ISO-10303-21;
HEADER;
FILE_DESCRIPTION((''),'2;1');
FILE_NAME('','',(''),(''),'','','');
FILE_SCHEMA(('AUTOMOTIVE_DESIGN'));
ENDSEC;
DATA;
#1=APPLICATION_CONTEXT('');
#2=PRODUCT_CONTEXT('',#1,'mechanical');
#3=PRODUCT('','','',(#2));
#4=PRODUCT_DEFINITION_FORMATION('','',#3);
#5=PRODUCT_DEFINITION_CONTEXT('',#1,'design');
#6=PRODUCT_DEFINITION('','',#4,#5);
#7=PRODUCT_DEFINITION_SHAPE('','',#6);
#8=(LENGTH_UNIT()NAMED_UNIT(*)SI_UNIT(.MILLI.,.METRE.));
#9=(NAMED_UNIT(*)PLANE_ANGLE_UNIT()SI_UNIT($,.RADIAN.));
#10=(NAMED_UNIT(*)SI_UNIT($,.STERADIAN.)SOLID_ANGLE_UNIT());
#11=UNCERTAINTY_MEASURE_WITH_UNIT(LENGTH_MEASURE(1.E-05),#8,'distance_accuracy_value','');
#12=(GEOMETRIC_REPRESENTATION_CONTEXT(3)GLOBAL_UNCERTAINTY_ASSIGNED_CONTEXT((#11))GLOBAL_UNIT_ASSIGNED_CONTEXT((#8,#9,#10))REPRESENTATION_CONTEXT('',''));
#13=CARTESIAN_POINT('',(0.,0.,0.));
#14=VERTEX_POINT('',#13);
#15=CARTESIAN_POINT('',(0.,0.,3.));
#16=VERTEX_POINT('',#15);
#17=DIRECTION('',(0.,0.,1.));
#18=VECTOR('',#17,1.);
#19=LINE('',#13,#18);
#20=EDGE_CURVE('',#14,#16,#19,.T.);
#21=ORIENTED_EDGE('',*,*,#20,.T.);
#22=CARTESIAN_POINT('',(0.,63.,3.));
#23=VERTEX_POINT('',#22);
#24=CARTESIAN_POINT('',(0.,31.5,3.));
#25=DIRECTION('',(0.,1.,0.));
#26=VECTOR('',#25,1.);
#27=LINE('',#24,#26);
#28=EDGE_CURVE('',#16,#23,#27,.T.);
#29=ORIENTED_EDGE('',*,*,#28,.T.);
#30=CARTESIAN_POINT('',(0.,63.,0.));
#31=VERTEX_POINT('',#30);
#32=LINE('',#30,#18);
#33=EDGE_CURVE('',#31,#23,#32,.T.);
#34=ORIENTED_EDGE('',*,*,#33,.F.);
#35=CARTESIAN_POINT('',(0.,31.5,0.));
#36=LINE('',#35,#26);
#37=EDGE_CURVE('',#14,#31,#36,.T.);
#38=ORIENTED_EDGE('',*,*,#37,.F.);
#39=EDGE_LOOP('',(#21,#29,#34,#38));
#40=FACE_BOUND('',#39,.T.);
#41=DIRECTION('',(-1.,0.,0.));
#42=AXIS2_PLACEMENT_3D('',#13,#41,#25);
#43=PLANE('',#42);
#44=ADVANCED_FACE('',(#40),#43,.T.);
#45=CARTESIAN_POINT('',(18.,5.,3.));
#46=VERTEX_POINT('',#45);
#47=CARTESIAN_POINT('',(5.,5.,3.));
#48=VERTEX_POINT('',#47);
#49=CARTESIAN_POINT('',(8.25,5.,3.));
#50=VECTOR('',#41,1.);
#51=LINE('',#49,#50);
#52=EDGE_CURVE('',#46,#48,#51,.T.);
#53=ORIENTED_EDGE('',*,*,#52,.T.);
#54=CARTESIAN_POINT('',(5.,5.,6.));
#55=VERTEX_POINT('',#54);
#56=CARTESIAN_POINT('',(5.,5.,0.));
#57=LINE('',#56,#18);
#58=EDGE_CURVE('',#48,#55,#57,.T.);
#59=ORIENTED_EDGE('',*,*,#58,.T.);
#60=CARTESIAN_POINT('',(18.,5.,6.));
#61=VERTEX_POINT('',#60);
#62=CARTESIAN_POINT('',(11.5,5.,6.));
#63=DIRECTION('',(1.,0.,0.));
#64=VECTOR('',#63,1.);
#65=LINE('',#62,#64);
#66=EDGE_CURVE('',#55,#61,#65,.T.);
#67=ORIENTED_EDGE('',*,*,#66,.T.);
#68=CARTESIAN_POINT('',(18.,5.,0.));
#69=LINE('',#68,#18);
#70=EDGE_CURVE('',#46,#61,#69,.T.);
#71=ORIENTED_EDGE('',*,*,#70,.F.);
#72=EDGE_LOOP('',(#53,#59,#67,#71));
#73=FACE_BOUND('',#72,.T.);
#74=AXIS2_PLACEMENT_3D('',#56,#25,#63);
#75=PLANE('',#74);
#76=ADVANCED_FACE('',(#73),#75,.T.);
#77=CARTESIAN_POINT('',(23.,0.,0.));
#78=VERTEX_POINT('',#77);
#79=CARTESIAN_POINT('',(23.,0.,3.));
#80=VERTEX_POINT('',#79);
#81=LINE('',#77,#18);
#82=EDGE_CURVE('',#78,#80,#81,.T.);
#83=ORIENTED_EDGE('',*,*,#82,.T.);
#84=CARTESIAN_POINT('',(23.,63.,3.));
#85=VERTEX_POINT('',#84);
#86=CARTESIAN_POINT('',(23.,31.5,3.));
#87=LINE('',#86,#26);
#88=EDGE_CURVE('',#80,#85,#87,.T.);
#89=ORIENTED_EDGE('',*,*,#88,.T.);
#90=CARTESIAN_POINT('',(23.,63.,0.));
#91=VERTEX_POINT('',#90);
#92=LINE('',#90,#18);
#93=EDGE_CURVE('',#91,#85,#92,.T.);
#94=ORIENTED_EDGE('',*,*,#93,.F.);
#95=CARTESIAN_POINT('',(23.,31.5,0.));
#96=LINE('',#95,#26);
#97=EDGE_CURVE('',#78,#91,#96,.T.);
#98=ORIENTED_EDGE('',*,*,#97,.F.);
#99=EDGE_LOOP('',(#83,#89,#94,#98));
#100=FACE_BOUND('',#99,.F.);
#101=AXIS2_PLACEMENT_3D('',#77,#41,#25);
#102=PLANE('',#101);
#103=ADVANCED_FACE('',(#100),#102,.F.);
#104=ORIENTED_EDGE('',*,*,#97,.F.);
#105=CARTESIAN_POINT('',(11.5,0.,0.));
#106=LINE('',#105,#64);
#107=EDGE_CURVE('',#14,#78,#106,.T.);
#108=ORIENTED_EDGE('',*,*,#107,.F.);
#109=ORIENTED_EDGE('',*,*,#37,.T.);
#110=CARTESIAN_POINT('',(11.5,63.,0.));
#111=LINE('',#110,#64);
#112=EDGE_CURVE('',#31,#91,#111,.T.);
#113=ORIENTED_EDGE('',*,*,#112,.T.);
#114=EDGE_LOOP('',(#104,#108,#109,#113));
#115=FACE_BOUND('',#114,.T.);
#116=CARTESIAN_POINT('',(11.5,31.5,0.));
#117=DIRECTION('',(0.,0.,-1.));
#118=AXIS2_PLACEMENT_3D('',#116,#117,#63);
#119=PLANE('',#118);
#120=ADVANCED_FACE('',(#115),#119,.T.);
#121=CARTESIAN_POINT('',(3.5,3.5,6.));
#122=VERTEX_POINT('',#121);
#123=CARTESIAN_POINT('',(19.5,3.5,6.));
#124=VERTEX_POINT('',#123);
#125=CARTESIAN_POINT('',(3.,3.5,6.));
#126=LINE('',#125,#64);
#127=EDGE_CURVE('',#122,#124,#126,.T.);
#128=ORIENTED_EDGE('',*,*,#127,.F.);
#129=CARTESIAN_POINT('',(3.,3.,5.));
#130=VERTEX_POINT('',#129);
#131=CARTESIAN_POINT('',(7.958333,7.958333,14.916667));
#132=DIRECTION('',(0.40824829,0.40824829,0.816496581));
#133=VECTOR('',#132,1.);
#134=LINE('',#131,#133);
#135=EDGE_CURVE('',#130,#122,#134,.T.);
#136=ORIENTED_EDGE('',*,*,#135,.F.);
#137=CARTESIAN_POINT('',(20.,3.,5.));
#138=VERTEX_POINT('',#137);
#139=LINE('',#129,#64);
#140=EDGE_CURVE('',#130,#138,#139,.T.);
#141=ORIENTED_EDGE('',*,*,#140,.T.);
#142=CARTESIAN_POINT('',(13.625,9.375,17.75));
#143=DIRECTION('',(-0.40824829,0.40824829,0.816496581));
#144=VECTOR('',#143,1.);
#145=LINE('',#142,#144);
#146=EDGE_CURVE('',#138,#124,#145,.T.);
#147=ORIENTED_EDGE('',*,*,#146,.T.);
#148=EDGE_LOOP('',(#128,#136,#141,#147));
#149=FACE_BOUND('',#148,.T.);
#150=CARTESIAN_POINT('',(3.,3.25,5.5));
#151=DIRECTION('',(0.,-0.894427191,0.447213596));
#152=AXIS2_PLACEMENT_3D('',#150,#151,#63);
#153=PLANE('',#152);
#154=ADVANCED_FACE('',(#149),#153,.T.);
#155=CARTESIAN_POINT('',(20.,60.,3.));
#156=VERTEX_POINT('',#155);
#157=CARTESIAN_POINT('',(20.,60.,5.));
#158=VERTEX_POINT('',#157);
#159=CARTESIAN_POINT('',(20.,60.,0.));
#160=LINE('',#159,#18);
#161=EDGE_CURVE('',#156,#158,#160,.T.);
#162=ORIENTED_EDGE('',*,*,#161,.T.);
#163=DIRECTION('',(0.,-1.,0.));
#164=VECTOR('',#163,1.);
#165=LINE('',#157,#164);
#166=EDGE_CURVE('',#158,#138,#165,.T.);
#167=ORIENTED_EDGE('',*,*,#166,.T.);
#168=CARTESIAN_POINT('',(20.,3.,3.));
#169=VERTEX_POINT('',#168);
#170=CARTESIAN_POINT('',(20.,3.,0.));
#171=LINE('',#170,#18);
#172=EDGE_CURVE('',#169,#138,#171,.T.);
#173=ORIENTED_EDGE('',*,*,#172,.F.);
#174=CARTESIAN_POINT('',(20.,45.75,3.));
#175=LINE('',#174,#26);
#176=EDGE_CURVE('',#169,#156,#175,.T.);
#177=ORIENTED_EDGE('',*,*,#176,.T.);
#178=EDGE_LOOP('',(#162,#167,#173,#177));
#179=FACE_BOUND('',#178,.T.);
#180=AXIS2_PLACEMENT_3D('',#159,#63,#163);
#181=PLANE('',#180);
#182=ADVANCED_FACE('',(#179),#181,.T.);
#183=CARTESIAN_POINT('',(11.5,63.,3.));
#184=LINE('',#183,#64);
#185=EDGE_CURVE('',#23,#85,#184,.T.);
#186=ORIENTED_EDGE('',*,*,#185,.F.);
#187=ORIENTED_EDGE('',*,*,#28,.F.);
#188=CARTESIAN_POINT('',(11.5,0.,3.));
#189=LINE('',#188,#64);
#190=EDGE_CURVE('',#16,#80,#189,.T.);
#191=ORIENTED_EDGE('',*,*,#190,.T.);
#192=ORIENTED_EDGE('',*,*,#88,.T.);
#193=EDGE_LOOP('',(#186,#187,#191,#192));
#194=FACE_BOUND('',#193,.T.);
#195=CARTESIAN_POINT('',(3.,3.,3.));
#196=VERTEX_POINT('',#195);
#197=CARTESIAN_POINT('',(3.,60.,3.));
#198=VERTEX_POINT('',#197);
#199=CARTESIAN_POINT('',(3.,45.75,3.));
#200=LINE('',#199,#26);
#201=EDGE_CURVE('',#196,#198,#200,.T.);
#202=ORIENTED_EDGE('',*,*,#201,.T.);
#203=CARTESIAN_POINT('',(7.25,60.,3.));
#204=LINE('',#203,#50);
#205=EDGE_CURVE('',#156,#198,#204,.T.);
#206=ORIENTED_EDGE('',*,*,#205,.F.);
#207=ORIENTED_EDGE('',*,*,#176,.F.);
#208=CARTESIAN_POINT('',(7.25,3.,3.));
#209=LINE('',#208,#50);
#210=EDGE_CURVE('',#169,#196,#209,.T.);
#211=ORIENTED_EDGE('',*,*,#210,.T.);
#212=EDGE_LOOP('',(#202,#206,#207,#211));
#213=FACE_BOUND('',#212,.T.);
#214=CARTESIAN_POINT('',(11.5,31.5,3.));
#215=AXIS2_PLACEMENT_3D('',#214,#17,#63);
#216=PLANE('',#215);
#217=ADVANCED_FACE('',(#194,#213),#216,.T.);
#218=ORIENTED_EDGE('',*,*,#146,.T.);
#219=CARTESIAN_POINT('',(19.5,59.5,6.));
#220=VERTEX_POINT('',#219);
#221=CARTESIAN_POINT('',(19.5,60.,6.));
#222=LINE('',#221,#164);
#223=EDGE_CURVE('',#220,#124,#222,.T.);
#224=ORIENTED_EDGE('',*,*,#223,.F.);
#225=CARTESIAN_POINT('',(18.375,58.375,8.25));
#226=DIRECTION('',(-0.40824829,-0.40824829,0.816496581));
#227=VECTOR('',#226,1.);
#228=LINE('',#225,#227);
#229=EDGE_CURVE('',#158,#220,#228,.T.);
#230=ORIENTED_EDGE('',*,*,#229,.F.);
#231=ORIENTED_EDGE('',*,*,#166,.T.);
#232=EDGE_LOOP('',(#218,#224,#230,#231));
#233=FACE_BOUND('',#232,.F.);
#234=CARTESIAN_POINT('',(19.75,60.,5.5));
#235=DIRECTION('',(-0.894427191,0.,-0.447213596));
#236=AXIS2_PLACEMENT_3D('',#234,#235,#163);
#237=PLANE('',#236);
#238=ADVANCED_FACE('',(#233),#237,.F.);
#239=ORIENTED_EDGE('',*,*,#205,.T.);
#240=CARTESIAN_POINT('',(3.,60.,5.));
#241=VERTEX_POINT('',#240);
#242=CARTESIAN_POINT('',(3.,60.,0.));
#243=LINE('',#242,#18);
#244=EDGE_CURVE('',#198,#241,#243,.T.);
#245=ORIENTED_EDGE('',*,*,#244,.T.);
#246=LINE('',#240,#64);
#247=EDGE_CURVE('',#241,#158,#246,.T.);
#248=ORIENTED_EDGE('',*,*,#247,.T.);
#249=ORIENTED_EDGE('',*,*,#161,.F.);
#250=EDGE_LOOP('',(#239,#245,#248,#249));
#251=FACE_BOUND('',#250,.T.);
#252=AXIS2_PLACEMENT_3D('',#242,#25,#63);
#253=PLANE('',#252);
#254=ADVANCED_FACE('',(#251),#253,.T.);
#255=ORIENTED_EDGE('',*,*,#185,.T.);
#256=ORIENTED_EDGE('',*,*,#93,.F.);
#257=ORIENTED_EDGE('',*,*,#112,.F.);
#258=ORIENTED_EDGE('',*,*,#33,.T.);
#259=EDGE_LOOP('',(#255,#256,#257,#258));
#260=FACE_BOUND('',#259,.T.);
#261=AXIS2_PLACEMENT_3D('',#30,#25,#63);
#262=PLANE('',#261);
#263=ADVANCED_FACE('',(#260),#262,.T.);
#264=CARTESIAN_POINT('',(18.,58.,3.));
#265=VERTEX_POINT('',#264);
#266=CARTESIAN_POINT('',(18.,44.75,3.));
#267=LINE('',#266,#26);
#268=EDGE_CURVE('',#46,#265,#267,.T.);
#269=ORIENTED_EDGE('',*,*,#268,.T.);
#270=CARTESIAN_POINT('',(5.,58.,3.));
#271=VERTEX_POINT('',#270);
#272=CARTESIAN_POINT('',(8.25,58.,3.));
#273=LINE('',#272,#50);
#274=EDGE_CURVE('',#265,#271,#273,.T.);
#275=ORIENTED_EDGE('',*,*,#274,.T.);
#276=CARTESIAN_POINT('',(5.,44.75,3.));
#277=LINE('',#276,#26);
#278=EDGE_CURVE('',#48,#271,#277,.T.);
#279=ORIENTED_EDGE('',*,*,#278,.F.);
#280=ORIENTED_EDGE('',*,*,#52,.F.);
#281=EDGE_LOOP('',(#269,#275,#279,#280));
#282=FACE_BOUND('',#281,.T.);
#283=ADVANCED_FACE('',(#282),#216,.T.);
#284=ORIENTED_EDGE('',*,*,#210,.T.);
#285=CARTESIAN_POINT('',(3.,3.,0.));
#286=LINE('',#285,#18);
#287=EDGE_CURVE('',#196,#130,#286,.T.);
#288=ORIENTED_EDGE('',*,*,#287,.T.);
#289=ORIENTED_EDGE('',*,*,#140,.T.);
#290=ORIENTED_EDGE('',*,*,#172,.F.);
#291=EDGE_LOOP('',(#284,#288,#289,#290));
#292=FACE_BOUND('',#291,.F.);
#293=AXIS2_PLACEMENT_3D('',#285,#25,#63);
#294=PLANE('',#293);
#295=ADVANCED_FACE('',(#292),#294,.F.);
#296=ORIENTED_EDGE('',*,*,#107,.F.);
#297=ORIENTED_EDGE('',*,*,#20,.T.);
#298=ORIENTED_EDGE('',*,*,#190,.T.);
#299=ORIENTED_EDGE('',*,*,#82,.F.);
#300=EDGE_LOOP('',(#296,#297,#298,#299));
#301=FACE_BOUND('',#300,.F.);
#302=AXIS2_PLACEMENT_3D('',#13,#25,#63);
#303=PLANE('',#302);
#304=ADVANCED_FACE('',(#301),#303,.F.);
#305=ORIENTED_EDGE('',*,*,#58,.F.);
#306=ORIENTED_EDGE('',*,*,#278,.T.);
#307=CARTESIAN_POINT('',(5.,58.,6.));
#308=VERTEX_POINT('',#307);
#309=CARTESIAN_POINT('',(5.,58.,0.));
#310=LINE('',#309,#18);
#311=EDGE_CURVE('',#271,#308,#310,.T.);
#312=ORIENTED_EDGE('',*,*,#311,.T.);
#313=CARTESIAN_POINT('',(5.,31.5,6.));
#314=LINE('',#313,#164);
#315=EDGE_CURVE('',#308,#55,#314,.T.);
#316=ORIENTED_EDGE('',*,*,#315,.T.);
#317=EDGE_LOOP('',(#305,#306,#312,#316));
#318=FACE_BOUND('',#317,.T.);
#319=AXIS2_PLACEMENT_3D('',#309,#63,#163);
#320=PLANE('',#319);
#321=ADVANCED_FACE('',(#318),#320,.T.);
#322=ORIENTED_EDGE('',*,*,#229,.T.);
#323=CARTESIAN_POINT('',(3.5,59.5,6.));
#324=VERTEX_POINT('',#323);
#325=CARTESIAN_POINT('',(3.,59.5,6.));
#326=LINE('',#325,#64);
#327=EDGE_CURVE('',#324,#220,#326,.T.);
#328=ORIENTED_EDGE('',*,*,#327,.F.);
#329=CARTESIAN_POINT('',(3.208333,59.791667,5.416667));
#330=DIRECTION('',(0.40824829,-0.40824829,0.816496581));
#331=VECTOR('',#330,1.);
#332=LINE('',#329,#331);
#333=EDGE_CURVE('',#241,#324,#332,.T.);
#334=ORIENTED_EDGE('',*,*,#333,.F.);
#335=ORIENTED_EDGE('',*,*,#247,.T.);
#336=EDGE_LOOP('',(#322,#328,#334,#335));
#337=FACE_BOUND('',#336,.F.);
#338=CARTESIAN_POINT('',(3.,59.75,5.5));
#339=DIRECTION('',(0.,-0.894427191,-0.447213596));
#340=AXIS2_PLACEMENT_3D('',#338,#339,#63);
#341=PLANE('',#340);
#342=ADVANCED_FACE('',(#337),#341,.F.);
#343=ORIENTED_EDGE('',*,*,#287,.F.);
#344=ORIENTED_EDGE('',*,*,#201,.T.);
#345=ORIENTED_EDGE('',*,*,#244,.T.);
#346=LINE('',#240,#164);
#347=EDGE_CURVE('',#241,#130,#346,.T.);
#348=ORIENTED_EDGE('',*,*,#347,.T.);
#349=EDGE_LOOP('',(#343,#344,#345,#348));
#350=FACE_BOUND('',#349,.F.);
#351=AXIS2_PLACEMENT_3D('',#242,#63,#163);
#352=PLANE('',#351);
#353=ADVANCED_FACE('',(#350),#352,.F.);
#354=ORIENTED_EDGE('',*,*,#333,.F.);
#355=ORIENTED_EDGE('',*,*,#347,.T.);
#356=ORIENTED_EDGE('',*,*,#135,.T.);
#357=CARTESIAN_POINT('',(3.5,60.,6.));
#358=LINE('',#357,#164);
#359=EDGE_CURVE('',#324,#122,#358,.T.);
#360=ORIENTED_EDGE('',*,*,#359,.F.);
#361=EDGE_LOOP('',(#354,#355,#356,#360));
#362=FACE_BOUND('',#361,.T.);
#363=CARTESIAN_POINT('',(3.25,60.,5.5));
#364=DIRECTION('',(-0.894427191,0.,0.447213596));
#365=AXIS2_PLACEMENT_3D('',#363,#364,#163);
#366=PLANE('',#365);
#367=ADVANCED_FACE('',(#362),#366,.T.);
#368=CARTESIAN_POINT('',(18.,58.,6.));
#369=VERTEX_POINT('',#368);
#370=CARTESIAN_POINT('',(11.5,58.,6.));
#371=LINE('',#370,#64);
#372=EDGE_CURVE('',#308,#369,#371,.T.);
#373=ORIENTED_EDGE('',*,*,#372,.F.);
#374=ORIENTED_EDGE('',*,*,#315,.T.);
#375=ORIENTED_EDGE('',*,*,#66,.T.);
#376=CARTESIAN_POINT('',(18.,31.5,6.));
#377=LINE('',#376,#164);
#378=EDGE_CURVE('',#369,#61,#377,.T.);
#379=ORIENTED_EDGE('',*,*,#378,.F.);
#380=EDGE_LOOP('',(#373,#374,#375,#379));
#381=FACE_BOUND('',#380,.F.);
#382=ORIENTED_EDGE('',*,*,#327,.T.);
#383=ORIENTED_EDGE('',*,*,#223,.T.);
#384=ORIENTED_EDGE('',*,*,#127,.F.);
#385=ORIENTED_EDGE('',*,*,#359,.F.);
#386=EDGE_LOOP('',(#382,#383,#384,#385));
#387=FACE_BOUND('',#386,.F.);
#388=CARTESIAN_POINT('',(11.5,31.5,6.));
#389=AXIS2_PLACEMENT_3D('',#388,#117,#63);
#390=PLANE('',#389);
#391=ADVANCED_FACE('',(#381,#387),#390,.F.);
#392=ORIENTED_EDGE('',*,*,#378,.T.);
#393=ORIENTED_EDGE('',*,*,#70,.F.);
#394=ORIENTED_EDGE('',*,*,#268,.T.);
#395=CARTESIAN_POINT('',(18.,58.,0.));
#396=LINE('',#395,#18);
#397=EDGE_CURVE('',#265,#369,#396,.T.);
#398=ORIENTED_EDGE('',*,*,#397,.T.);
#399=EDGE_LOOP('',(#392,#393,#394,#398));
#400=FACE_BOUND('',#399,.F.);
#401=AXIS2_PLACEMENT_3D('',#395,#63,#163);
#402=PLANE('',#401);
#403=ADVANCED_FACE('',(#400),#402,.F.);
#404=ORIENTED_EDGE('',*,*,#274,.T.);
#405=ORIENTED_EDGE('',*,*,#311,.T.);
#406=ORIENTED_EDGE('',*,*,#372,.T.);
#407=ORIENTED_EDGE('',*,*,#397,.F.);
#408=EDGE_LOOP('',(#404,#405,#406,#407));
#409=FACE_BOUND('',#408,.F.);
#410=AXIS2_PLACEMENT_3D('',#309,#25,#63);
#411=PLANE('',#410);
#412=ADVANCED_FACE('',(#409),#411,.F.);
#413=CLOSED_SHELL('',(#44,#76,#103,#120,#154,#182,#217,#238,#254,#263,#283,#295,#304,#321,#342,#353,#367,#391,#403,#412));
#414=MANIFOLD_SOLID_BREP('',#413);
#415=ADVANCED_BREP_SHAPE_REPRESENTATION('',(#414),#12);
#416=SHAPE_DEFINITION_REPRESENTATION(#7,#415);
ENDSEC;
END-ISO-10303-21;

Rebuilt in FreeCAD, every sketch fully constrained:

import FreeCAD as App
import Part
import Sketcher
from FreeCAD import Vector


def edges_at(feature, points):
    """Names of the edges that pass closest to the given points."""
    edges = feature.Shape.Edges
    near = lambda p: min(range(len(edges)), key=lambda i: edges[i].distToShape(Part.Vertex(*p))[0])
    return sorted({f"Edge{near(p) + 1}" for p in points})

doc = App.newDocument("Part")
params = doc.addObject("Spreadsheet::Sheet", "Params")
for row, (alias, value) in enumerate([
    ("sketch1_width", "23 mm"),
    ("sketch1_height", "63 mm"),
    ("pad1_length", "3 mm"),
    ("sketch2_width", "17 mm"),
    ("sketch2_width2", "13 mm"),
    ("sketch2_height", "57 mm"),
    ("sketch2_height2", "53 mm"),
    ("pad2_length", "6 mm"),
    ("chamfer_size", "1 mm"),
    ("chamfer_size2", "0.5 mm"),
], start=1):
    params.set(f"A{row}", alias)
    params.set(f"B{row}", "=" + value)
    params.setAlias(f"B{row}", alias)

body = doc.addObject("PartDesign::Body", "Body")

# Sketch on XY plane
sketch1 = body.newObject("Sketcher::SketchObject", "Sketch")
sketch1.AttachmentSupport = (doc.getObject("XY_Plane"), [""])
sketch1.MapMode = "FlatFace"
sketch1.addGeometry([
    Part.LineSegment(Vector(0, 63, 0), Vector(0, 0, 0)),
    Part.LineSegment(Vector(0, 0, 0), Vector(23, 0, 0)),
    Part.LineSegment(Vector(23, 0, 0), Vector(23, 63, 0)),
    Part.LineSegment(Vector(23, 63, 0), Vector(0, 63, 0)),
], False)
sketch1.addConstraint([
    Sketcher.Constraint("Coincident", 0, 2, 1, 1),
    Sketcher.Constraint("Coincident", 1, 2, 2, 1),
    Sketcher.Constraint("Coincident", 2, 2, 3, 1),
    Sketcher.Constraint("Coincident", 3, 2, 0, 1),
    Sketcher.Constraint("Vertical", 0),
    Sketcher.Constraint("Horizontal", 1),
    Sketcher.Constraint("Vertical", 2),
    Sketcher.Constraint("Horizontal", 3),
    Sketcher.Constraint("Coincident", 0, 2, -1, 1),
    Sketcher.Constraint("DistanceX", 1, 1, 1, 2, 23.0),
    Sketcher.Constraint("DistanceY", 0, 2, 0, 1, 63.0),
])
sketch1.setExpression("Constraints[9]", "Params.sketch1_width")
sketch1.setExpression("Constraints[10]", "Params.sketch1_height")
pad1 = body.newObject("PartDesign::Pad", "Pad")
pad1.Profile = sketch1
pad1.setExpression("Length", "Params.pad1_length")

# Sketch on XY plane
sketch2 = body.newObject("Sketcher::SketchObject", "Sketch001")
sketch2.AttachmentSupport = (doc.getObject("XY_Plane"), [""])
sketch2.MapMode = "FlatFace"
sketch2.addGeometry([
    Part.LineSegment(Vector(3, 3, 0), Vector(3, 60, 0)),  # 0
    Part.LineSegment(Vector(3, 60, 0), Vector(20, 60, 0)),  # 1
    Part.LineSegment(Vector(20, 60, 0), Vector(20, 3, 0)),  # 2
    Part.LineSegment(Vector(20, 3, 0), Vector(3, 3, 0)),  # 3
    Part.LineSegment(Vector(18, 58, 0), Vector(5, 58, 0)),  # 4
    Part.LineSegment(Vector(5, 58, 0), Vector(5, 5, 0)),  # 5
    Part.LineSegment(Vector(5, 5, 0), Vector(18, 5, 0)),  # 6
    Part.LineSegment(Vector(18, 5, 0), Vector(18, 58, 0)),  # 7
], False)
sketch2.addConstraint([
    Sketcher.Constraint("Coincident", 0, 2, 1, 1),
    Sketcher.Constraint("Coincident", 1, 2, 2, 1),
    Sketcher.Constraint("Coincident", 2, 2, 3, 1),
    Sketcher.Constraint("Coincident", 3, 2, 0, 1),
    Sketcher.Constraint("Coincident", 4, 2, 5, 1),
    Sketcher.Constraint("Coincident", 5, 2, 6, 1),
    Sketcher.Constraint("Coincident", 6, 2, 7, 1),
    Sketcher.Constraint("Coincident", 7, 2, 4, 1),
    Sketcher.Constraint("Vertical", 0),
    Sketcher.Constraint("Horizontal", 1),
    Sketcher.Constraint("Vertical", 2),
    Sketcher.Constraint("Horizontal", 3),
    Sketcher.Constraint("Horizontal", 4),
    Sketcher.Constraint("Vertical", 5),
    Sketcher.Constraint("Horizontal", 6),
    Sketcher.Constraint("Vertical", 7),
    Sketcher.Constraint("DistanceX", 1, 1, 1, 2, 17.0),
    Sketcher.Constraint("DistanceX", 4, 2, 4, 1, 13.0),
    Sketcher.Constraint("DistanceY", 0, 1, 0, 2, 57.0),
    Sketcher.Constraint("DistanceY", 5, 2, 5, 1, 53.0),
    Sketcher.Constraint("DistanceX", -1, 1, 0, 2, 3.0),
    Sketcher.Constraint("DistanceY", -1, 1, 0, 2, 60.0),
    Sketcher.Constraint("DistanceX", -1, 1, 4, 2, 5.0),
    Sketcher.Constraint("DistanceY", -1, 1, 4, 2, 58.0),
])
sketch2.setExpression("Constraints[16]", "Params.sketch2_width")
sketch2.setExpression("Constraints[17]", "Params.sketch2_width2")
sketch2.setExpression("Constraints[18]", "Params.sketch2_height")
sketch2.setExpression("Constraints[19]", "Params.sketch2_height2")
pad2 = body.newObject("PartDesign::Pad", "Pad001")
pad2.Profile = sketch2
pad2.setExpression("Length", "Params.pad2_length")
doc.recompute()

chamfer = body.newObject("PartDesign::Chamfer", "Chamfer")
chamfer.Base = (pad2, edges_at(pad2, [
    (11.5, 3, 6),
    (20, 31.5, 6),
    (3, 31.5, 6),
    (11.5, 60, 6),
]))
chamfer.ChamferType = "Two distances"
chamfer.setExpression("Size", "Params.chamfer_size")
chamfer.setExpression("Size2", "Params.chamfer_size2")

doc.recompute()
